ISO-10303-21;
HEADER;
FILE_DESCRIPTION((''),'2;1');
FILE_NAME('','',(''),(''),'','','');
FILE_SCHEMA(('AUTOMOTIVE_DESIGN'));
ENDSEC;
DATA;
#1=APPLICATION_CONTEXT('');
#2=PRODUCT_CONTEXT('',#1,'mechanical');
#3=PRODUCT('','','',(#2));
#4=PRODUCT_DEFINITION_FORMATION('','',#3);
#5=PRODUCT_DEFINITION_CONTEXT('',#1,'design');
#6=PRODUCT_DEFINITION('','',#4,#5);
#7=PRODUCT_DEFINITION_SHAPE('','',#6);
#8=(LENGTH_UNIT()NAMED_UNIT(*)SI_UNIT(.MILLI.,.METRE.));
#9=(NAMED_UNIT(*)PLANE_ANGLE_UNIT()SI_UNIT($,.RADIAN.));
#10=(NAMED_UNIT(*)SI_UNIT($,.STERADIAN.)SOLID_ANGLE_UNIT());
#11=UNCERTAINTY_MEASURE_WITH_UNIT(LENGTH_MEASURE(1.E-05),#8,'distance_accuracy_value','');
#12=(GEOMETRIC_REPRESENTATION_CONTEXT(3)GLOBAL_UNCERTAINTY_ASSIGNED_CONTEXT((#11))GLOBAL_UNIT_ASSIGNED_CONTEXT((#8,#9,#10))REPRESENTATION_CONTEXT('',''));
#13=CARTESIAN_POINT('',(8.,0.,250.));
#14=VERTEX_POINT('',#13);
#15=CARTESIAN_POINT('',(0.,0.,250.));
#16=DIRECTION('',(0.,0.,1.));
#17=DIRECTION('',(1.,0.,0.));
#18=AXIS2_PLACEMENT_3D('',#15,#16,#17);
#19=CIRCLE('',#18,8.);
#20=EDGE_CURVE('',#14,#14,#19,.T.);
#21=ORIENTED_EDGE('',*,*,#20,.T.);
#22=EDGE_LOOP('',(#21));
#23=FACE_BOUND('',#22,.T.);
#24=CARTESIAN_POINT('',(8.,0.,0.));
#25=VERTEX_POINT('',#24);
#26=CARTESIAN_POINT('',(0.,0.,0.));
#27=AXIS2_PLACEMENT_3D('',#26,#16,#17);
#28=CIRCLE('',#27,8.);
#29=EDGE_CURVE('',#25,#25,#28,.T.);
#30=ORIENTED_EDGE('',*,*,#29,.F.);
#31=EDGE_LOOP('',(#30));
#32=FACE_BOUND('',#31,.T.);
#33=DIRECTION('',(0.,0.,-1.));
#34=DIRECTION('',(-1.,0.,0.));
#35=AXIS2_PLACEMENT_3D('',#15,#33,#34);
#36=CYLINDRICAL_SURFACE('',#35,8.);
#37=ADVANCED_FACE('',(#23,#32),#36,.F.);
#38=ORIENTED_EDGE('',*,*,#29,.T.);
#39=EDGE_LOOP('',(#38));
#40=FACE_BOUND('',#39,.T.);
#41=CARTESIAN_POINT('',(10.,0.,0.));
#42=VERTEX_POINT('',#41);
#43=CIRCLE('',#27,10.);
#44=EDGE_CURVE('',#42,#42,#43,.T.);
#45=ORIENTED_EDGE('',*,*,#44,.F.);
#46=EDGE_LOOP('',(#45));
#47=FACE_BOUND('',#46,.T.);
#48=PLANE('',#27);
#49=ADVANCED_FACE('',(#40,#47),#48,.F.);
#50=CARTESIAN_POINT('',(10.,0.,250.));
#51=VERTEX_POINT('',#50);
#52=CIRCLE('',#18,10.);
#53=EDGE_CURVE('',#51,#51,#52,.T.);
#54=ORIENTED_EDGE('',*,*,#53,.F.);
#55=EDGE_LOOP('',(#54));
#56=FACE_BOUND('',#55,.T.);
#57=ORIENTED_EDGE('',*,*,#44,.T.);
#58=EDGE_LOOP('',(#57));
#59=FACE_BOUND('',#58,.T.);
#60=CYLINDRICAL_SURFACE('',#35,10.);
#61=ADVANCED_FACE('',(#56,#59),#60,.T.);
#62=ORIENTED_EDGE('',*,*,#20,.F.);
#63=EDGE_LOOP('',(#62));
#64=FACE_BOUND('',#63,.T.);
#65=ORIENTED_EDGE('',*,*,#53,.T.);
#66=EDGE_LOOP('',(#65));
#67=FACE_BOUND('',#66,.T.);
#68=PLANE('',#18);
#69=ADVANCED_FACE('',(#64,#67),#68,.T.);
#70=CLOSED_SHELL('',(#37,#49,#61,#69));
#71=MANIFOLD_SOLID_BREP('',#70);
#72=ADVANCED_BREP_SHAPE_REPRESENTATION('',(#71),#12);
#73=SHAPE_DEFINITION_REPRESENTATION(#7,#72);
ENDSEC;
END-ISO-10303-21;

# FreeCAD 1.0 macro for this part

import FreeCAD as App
import Part
import Sketcher
from FreeCAD import Vector
Q = App.Units.Quantity

doc = App.newDocument("Part")
params = doc.addObject("Spreadsheet::Sheet", "Params")
for row, (alias, value) in enumerate([
    ("sketch1_diameter", "20 mm"),
    ("sketch1_diameter2", "16 mm"),
    ("pad1_length", "250 mm"),
], start=1):
    params.set(f"A{row}", alias)
    params.set(f"B{row}", "=" + value)
    params.setAlias(f"B{row}", alias)

body = doc.addObject("PartDesign::Body", "Body")

# Sketch on XY plane
sketch1 = body.newObject("Sketcher::SketchObject", "Sketch")
sketch1.AttachmentSupport = (doc.getObject("XY_Plane"), [""])
sketch1.MapMode = "FlatFace"
sketch1.addGeometry(Part.Circle(Vector(0, 0, 0), Vector(0, 0, 1), 10), False)
sketch1.addGeometry(Part.Circle(Vector(0, 0, 0), Vector(0, 0, 1), 8), False)
sketch1.addConstraint(Sketcher.Constraint("Coincident", 0, 3, -1, 1))
sketch1.addConstraint(Sketcher.Constraint("Coincident", 1, 3, -1, 1))
sketch1.addConstraint(Sketcher.Constraint("Diameter", 0, Q("20 mm")))
sketch1.addConstraint(Sketcher.Constraint("Diameter", 1, Q("16 mm")))
sketch1.setExpression("Constraints[2]", "Params.sketch1_diameter")
sketch1.setExpression("Constraints[3]", "Params.sketch1_diameter2")
pad1 = body.newObject("PartDesign::Pad", "Pad")
pad1.Profile = sketch1
pad1.setExpression("Length", "Params.pad1_length")

doc.recompute()
